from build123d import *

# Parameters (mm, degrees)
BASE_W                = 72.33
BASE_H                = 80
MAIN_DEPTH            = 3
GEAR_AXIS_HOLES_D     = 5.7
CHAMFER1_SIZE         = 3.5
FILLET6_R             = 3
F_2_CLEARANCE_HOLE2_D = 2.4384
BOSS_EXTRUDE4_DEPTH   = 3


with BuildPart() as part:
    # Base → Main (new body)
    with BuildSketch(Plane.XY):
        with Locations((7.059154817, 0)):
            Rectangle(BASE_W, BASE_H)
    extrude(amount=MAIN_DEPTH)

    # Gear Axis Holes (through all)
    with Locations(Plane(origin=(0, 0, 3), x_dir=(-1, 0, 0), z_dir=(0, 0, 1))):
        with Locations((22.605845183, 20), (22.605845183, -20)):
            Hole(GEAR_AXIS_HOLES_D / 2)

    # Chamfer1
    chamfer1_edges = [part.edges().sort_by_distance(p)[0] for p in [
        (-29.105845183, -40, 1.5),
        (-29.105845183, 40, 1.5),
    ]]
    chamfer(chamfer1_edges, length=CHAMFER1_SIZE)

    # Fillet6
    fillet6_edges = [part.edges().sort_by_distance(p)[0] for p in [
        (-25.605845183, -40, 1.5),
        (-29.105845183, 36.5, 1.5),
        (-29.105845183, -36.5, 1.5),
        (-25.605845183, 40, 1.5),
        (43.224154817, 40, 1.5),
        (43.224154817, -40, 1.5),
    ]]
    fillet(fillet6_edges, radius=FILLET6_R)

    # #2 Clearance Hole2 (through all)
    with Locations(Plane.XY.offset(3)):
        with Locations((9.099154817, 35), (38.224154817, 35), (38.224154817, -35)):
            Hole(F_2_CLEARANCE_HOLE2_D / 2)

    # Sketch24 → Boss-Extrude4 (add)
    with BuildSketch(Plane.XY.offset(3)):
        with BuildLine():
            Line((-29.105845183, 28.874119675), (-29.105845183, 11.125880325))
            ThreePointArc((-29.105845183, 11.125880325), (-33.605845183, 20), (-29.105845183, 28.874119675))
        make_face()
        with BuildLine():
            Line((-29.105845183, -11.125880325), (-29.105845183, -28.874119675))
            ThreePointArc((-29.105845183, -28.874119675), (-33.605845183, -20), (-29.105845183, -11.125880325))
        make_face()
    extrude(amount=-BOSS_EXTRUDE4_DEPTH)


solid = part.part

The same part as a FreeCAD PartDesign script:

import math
import FreeCAD as App
import Part
import Sketcher

V = App.Vector
Q = App.Units.Quantity


def edges_at(feature, points):
    """Names of the edges that pass closest to the given points."""
    edges = feature.Shape.Edges
    near = lambda p: min(range(len(edges)), key=lambda i: edges[i].distToShape(Part.Vertex(*p))[0])
    return sorted({f"Edge{near(p) + 1}" for p in points})

doc = App.newDocument("Part")
body = doc.addObject("PartDesign::Body", "Body")

# Sketch on XY plane
sketch1 = body.newObject("Sketcher::SketchObject", "Sketch")
sketch1.AttachmentSupport = (doc.getObject("XY_Plane"), [""])
sketch1.MapMode = "FlatFace"
sketch1.addGeometry([
    Part.LineSegment(V(-29, 40, 0), V(-29, -40, 0)),
    Part.LineSegment(V(-29, -40, 0), V(43, -40, 0)),
    Part.LineSegment(V(43, -40, 0), V(43, 40, 0)),
    Part.LineSegment(V(43, 40, 0), V(-29, 40, 0)),
], False)
sketch1.addConstraint([
    Sketcher.Constraint("Coincident", 0, 2, 1, 1),
    Sketcher.Constraint("Coincident", 1, 2, 2, 1),
    Sketcher.Constraint("Coincident", 2, 2, 3, 1),
    Sketcher.Constraint("Coincident", 3, 2, 0, 1),
    Sketcher.Constraint("Vertical", 0),
    Sketcher.Constraint("Horizontal", 1),
    Sketcher.Constraint("Vertical", 2),
    Sketcher.Constraint("Horizontal", 3),
    Sketcher.Constraint("DistanceY", 0, 2, 0, 1, Q("80 mm")),
    Sketcher.Constraint("DistanceY", 0, 2, -1, 1, Q("40 mm")),
    Sketcher.Constraint("DistanceX", 1, 1, 1, 2, Q("72.33 mm")),
    Sketcher.Constraint("DistanceX", 0, 2, -1, 1, Q("29.105845 mm")),
])
pad1 = body.newObject("PartDesign::Pad", "Pad")
pad1.Profile = sketch1
pad1.Length = 3

# Sketch on XY plane
sketch2 = body.newObject("Sketcher::SketchObject", "Sketch001")
sketch2.AttachmentSupport = (doc.getObject("XY_Plane"), [""])
sketch2.MapMode = "FlatFace"
sketch2.AttachmentOffset = App.Placement(V(0, 0, 3), App.Rotation())
sketch2.addGeometry([
    Part.Circle(V(-22.6, -20, 0), V(0, 0, 1), 2.9),
    Part.Circle(V(-22.6, 20, 0), V(0, 0, 1), 2.9),
], False)
sketch2.addConstraint([
    Sketcher.Constraint("Equal", 0, 1),
    Sketcher.Constraint("Symmetric", 0, 3, 1, 3, -1),
    Sketcher.Constraint("Diameter", 0, Q("5.7 mm")),
    Sketcher.Constraint("DistanceY", 0, 3, -1, 1, Q("20 mm")),
    Sketcher.Constraint("DistanceX", 0, 3, -1, 1, Q("22.605845 mm")),
])
doc.recompute()
hole = body.newObject("PartDesign::Hole", "Hole")
hole.Profile = sketch2
hole.ThreadType = "None"
hole.Diameter = 5.7
hole.DepthType = "ThroughAll"
doc.recompute()

chamfer = body.newObject("PartDesign::Chamfer", "Chamfer")
chamfer.Base = (hole, edges_at(hole, [(-29.106, -40, 1.5), (-29.106, 40, 1.5)]))
chamfer.Size = 3.5
doc.recompute()

fillet = body.newObject("PartDesign::Fillet", "Fillet")
fillet.Base = (chamfer, edges_at(chamfer, [
    (-25.606, -40, 1.5),
    (-29.106, 36.5, 1.5),
    (-29.106, -36.5, 1.5),
    (-25.606, 40, 1.5),
    (43.224, 40, 1.5),
    (43.224, -40, 1.5),
]))
fillet.Radius = 3

# Sketch on XY plane
sketch3 = body.newObject("Sketcher::SketchObject", "Sketch002")
sketch3.AttachmentSupport = (doc.getObject("XY_Plane"), [""])
sketch3.MapMode = "FlatFace"
sketch3.AttachmentOffset = App.Placement(V(0, 0, 3), App.Rotation())
sketch3.addGeometry([
    Part.Circle(V(9.1, 35, 0), V(0, 0, 1), 1.2),
    Part.Circle(V(38.2, 35, 0), V(0, 0, 1), 1.2),
    Part.Circle(V(38.2, -35, 0), V(0, 0, 1), 1.2),
], False)
sketch3.addConstraint([
    Sketcher.Constraint("Equal", 0, 1),
    Sketcher.Constraint("Equal", 1, 2),
    Sketcher.Constraint("Symmetric", 1, 3, 2, 3, -1),
    Sketcher.Constraint("Horizontal", 0, 3, 1, 3),
    Sketcher.Constraint("DistanceY", -1, 1, 0, 3, Q("35 mm")),
    Sketcher.Constraint("Diameter", 0, Q("2.4384 mm")),
    Sketcher.Constraint("DistanceX", 0, 3, 1, 3, Q("29.125 mm")),
    Sketcher.Constraint("DistanceX", -1, 1, 0, 3, Q("9.099155 mm")),
])
doc.recompute()
hole2 = body.newObject("PartDesign::Hole", "Hole001")
hole2.Profile = sketch3
hole2.ThreadType = "None"
hole2.Diameter = 2.4384
hole2.DepthType = "ThroughAll"

# Sketch on XY plane
sketch4 = body.newObject("Sketcher::SketchObject", "Sketch003")
sketch4.AttachmentSupport = (doc.getObject("XY_Plane"), [""])
sketch4.MapMode = "FlatFace"
sketch4.AttachmentOffset = App.Placement(V(0, 0, 3), App.Rotation())
sketch4.addGeometry([
    Part.LineSegment(V(-29, 11, 0), V(-29, 29, 0)),
    Part.ArcOfCircle(Part.Circle(V(-23, 20, 0), V(0, 0, 1), 11), math.radians(126), math.radians(234)),
    Part.LineSegment(V(-29, -29, 0), V(-29, -11, 0)),
    Part.ArcOfCircle(Part.Circle(V(-23, -20, 0), V(0, 0, 1), 11), math.radians(126), math.radians(234)),
], False)
sketch4.addConstraint([
    Sketcher.Constraint("Coincident", 0, 1, 1, 2),
    Sketcher.Constraint("Coincident", 1, 1, 0, 2),
    Sketcher.Constraint("Coincident", 2, 1, 3, 2),
    Sketcher.Constraint("Coincident", 3, 1, 2, 2),
    Sketcher.Constraint("Vertical", 0),
    Sketcher.Constraint("Vertical", 2),
    Sketcher.Constraint("Equal", 1, 3),
    Sketcher.Constraint("Symmetric", 1, 3, 3, 3, -1),
    Sketcher.Constraint("Vertical", 1, 1, 2, 1),
    Sketcher.Constraint("Radius", 1, Q("11 mm")),
    Sketcher.Constraint("DistanceY", -1, 1, 1, 3, Q("20 mm")),
    Sketcher.Constraint("DistanceX", 0, 1, 1, 3, Q("6.5 mm")),
    Sketcher.Constraint("DistanceX", 1, 3, -1, 1, Q("22.605845 mm")),
])
pad2 = body.newObject("PartDesign::Pad", "Pad001")
pad2.Profile = sketch4
pad2.Length = 3
pad2.Reversed = True

doc.recompute()
